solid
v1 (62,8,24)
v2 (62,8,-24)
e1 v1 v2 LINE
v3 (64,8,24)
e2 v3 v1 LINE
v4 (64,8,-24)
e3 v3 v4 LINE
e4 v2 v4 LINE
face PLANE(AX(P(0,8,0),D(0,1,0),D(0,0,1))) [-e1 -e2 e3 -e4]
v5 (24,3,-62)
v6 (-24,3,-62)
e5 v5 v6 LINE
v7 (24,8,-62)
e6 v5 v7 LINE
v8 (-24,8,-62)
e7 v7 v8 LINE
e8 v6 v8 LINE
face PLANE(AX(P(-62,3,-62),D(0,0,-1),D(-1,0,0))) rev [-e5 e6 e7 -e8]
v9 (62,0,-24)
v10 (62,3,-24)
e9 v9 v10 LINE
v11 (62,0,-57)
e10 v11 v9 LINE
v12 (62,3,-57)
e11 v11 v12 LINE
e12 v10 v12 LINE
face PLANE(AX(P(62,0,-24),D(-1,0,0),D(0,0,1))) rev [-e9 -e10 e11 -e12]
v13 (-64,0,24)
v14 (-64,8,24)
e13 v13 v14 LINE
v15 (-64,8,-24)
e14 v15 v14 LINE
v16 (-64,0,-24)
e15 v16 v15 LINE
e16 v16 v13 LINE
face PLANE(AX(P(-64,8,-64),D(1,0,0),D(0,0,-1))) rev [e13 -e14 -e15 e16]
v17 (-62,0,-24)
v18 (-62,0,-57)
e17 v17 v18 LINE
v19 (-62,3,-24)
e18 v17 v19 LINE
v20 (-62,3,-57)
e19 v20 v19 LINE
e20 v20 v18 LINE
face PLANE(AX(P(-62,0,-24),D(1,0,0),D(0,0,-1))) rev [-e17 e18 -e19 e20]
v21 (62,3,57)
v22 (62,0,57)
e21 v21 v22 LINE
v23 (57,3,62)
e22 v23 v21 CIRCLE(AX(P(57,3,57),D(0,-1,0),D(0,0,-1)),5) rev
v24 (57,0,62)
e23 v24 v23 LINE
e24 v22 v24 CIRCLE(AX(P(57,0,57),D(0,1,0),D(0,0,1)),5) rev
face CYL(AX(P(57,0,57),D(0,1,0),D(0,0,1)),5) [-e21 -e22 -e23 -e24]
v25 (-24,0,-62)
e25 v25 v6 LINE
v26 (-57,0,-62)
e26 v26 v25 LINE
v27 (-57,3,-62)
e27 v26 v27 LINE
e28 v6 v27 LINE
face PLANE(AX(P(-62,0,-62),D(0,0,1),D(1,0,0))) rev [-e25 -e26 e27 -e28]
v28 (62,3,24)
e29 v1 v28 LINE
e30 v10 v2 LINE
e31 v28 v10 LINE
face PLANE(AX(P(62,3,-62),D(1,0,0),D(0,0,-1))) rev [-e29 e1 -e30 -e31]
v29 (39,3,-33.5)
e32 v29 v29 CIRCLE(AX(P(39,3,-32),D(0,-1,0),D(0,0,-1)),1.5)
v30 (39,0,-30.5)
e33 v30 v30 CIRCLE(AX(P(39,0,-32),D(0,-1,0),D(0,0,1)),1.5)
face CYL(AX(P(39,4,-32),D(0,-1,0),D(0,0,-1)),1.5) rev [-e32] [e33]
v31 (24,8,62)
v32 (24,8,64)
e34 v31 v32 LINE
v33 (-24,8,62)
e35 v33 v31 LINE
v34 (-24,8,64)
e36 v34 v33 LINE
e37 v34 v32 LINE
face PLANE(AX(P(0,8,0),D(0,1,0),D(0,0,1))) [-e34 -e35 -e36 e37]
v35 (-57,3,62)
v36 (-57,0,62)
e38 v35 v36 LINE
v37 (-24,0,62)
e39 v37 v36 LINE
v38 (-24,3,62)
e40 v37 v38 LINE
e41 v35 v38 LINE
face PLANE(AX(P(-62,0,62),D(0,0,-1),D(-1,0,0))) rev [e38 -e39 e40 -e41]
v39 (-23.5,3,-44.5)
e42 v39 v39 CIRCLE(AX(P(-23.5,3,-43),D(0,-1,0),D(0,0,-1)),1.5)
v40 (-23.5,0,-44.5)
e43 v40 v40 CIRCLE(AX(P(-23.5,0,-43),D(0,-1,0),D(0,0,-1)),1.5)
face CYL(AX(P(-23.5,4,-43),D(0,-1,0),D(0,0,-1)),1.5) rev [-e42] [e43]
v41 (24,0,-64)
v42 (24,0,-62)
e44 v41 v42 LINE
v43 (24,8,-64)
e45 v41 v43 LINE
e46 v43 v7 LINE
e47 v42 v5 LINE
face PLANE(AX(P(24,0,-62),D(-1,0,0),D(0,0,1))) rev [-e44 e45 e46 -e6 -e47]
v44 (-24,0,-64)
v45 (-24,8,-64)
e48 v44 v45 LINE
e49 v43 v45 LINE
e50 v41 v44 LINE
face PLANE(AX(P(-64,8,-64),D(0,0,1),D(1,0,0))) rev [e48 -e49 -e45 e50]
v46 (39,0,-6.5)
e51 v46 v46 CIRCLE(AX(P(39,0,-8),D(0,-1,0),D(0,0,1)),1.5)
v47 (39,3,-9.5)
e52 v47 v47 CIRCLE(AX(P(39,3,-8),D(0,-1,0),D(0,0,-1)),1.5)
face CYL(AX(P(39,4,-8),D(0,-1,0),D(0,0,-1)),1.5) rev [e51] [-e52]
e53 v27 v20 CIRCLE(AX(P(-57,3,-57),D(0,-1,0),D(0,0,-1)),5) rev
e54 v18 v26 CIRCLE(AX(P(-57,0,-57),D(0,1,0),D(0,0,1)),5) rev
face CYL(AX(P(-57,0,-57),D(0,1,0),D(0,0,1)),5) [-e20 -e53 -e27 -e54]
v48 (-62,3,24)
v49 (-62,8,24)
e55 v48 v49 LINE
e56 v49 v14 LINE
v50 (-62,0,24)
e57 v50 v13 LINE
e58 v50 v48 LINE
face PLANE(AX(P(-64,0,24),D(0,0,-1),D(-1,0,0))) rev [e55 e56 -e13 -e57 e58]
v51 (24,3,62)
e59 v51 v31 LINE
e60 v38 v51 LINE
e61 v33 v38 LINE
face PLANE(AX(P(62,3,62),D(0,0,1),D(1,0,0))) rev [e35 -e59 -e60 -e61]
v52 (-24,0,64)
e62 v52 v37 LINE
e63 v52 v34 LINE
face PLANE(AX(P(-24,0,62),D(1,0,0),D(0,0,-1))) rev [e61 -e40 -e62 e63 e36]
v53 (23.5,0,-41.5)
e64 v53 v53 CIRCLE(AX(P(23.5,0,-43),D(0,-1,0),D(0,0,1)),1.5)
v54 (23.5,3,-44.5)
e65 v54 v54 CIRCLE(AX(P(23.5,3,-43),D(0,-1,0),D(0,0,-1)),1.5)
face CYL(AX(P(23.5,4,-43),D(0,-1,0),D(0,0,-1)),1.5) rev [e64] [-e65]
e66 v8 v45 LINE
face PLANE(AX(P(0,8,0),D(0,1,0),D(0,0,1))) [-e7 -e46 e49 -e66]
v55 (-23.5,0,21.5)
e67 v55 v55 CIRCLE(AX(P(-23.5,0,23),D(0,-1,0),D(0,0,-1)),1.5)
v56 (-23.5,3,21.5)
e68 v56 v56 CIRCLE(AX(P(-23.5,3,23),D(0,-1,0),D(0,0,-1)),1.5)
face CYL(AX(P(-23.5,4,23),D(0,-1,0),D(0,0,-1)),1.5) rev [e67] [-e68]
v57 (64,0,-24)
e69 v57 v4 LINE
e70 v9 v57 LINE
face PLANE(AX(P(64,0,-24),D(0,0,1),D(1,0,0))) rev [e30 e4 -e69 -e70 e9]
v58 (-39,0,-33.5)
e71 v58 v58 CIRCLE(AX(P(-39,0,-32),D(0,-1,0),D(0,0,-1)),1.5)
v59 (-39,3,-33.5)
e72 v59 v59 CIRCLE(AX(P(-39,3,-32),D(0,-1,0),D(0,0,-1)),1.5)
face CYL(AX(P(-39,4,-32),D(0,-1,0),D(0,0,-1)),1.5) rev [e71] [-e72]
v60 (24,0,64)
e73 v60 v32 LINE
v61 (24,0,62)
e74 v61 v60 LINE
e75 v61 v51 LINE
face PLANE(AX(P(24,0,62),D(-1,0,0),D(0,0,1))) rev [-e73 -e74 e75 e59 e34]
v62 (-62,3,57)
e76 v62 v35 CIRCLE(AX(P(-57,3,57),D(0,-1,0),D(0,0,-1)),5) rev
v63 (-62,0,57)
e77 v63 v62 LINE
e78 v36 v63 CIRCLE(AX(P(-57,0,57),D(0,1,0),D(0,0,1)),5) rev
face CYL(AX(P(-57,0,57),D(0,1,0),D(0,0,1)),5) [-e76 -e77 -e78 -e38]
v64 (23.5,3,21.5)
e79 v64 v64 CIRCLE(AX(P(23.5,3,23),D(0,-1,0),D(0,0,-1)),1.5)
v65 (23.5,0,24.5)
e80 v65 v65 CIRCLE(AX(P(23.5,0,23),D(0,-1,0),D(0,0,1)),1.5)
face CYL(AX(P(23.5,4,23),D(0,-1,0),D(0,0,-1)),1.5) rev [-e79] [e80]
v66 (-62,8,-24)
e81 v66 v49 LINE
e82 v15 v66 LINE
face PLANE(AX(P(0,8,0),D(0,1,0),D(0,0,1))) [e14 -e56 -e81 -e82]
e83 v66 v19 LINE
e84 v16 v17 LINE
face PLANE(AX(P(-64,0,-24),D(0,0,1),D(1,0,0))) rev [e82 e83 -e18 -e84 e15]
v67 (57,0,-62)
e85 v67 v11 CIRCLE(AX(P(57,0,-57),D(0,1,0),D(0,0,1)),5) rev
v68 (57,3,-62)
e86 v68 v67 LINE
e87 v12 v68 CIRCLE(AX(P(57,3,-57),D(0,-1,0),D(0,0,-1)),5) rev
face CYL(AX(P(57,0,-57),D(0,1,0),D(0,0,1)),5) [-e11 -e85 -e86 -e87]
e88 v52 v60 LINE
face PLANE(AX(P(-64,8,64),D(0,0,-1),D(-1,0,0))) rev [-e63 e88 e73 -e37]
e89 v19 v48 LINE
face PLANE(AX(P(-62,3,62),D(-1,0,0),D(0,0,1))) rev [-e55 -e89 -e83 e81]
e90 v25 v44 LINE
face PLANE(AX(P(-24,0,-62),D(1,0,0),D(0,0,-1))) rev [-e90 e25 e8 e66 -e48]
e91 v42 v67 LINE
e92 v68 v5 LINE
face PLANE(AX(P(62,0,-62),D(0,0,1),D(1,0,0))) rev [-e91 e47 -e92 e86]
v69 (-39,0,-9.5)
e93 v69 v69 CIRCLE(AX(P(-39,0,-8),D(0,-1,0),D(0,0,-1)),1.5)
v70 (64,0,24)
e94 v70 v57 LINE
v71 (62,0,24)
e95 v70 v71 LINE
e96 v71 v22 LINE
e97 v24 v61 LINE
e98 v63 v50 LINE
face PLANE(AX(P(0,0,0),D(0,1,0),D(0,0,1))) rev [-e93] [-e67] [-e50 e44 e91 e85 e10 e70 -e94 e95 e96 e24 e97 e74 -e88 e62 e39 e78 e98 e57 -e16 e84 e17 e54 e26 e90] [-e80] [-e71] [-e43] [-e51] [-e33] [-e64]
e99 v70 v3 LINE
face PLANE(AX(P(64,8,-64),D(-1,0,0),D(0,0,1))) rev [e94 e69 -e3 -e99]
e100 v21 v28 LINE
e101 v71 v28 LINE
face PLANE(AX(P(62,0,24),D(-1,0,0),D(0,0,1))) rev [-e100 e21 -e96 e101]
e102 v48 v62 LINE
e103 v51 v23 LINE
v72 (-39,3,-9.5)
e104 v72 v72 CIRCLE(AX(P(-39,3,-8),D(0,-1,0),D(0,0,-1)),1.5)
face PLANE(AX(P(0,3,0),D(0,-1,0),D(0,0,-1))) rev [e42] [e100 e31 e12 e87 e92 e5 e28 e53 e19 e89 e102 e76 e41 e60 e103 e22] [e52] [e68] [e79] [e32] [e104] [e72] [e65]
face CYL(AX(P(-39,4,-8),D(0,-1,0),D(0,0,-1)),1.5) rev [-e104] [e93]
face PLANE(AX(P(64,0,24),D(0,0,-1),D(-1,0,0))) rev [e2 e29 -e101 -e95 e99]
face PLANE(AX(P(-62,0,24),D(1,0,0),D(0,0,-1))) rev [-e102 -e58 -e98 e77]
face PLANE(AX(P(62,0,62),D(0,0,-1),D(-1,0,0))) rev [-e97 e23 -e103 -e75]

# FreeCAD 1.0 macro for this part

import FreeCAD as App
import Part
import Sketcher
from FreeCAD import Vector


def edges_at(feature, points):
    """Names of the edges that pass closest to the given points."""
    edges = feature.Shape.Edges
    near = lambda p: min(range(len(edges)), key=lambda i: edges[i].distToShape(Part.Vertex(*p))[0])
    return sorted({f"Edge{near(p) + 1}" for p in points})


def add_polygon(sketch, points):
    """Adds a closed chain of lines whose ends are joined by coincident constraints."""
    first, n = sketch.GeometryCount, len(points)
    for a, b in zip(points, points[1:] + points[:1]):
        sketch.addGeometry(Part.LineSegment(App.Vector(*a, 0), App.Vector(*b, 0)), False)
    for i in range(n):
        sketch.addConstraint(Sketcher.Constraint("Coincident", first + i, 2, first + (i + 1) % n, 1))

doc = App.newDocument("Part")
body = doc.addObject("PartDesign::Body", "Body")

# Sketch on XZ plane
sketch1 = body.newObject("Sketcher::SketchObject", "Sketch")
sketch1.AttachmentSupport = (doc.getObject("XZ_Plane"), [""])
sketch1.MapMode = "FlatFace"
add_polygon(sketch1, [(-64, -64), (-64, 64), (64, 64), (64, -64)])  # lines 0-3
sketch1.addConstraint(Sketcher.Constraint("Vertical", 0))
sketch1.addConstraint(Sketcher.Constraint("Horizontal", 1))
sketch1.addConstraint(Sketcher.Constraint("Vertical", 2))
sketch1.addConstraint(Sketcher.Constraint("Horizontal", 3))
sketch1.addConstraint(Sketcher.Constraint("Symmetric", 0, 2, 2, 2, -1, 1))
sketch1.addConstraint(Sketcher.Constraint("Equal", 3, 0))
sketch1.addConstraint(Sketcher.Constraint("DistanceX", 1, 1, 1, 2, 128.0))
pad1 = body.newObject("PartDesign::Pad", "Pad")
pad1.Profile = sketch1
pad1.Length = 8
pad1.Reversed = True

# Sketch on XZ plane
sketch2 = body.newObject("Sketcher::SketchObject", "Sketch001")
sketch2.AttachmentSupport = (doc.getObject("XZ_Plane"), [""])
sketch2.MapMode = "FlatFace"
sketch2.AttachmentOffset = App.Placement(Vector(0, 0, -8), App.Rotation())
add_polygon(sketch2, [(-64, -64), (-64, -24), (-62, -24), (-62, -62), (-24, -62), (-24, -64)])  # lines 0-5
add_polygon(sketch2, [(-62, 24), (-64, 24), (-64, 64), (-24, 64), (-24, 62), (-62, 62)])  # lines 6-11
add_polygon(sketch2, [(24, 62), (24, 64), (64, 64), (64, 24), (62, 24), (62, 62)])  # lines 12-17
add_polygon(sketch2, [(62, -24), (64, -24), (64, -64), (24, -64), (24, -62), (62, -62)])  # lines 18-23
sketch2.addConstraint(Sketcher.Constraint("Vertical", 0))
sketch2.addConstraint(Sketcher.Constraint("Horizontal", 1))
sketch2.addConstraint(Sketcher.Constraint("Vertical", 2))
sketch2.addConstraint(Sketcher.Constraint("Horizontal", 3))
sketch2.addConstraint(Sketcher.Constraint("Vertical", 4))
sketch2.addConstraint(Sketcher.Constraint("Horizontal", 5))
sketch2.addConstraint(Sketcher.Constraint("Horizontal", 6))
sketch2.addConstraint(Sketcher.Constraint("Vertical", 7))
sketch2.addConstraint(Sketcher.Constraint("Horizontal", 8))
sketch2.addConstraint(Sketcher.Constraint("Vertical", 9))
sketch2.addConstraint(Sketcher.Constraint("Horizontal", 10))
sketch2.addConstraint(Sketcher.Constraint("Vertical", 11))
sketch2.addConstraint(Sketcher.Constraint("Vertical", 12))
sketch2.addConstraint(Sketcher.Constraint("Horizontal", 13))
sketch2.addConstraint(Sketcher.Constraint("Vertical", 14))
sketch2.addConstraint(Sketcher.Constraint("Horizontal", 15))
sketch2.addConstraint(Sketcher.Constraint("Vertical", 16))
sketch2.addConstraint(Sketcher.Constraint("Horizontal", 17))
sketch2.addConstraint(Sketcher.Constraint("Horizontal", 18))
sketch2.addConstraint(Sketcher.Constraint("Vertical", 19))
sketch2.addConstraint(Sketcher.Constraint("Horizontal", 20))
sketch2.addConstraint(Sketcher.Constraint("Vertical", 21))
sketch2.addConstraint(Sketcher.Constraint("Horizontal", 22))
sketch2.addConstraint(Sketcher.Constraint("Vertical", 23))
sketch2.addConstraint(Sketcher.Constraint("Symmetric", 4, 2, 12, 2, -1, 1))
sketch2.addConstraint(Sketcher.Constraint("Symmetric", 0, 2, 14, 2, -1, 1))
sketch2.addConstraint(Sketcher.Constraint("Symmetric", 2, 2, 16, 2, -1, 1))
sketch2.addConstraint(Sketcher.Constraint("Symmetric", 6, 2, 18, 2, -1, 1))
sketch2.addConstraint(Sketcher.Constraint("Symmetric", 8, 2, 20, 2, -1, 1))
sketch2.addConstraint(Sketcher.Constraint("Symmetric", 10, 2, 22, 2, -1, 1))
sketch2.addConstraint(Sketcher.Constraint("Symmetric", 8, 2, 12, 2, -2))
sketch2.addConstraint(Sketcher.Constraint("Symmetric", 6, 2, 14, 2, -2))
sketch2.addConstraint(Sketcher.Constraint("Symmetric", 10, 2, 16, 2, -2))
sketch2.addConstraint(Sketcher.Constraint("Equal", 20, 0))
sketch2.addConstraint(Sketcher.Constraint("Equal", 22, 2))
sketch2.addConstraint(Sketcher.Constraint("DistanceX", 1, 1, 1, 2, 2.0))
sketch2.addConstraint(Sketcher.Constraint("DistanceX", 3, 1, 3, 2, 38.0))
sketch2.addConstraint(Sketcher.Constraint("DistanceX", 0, 2, -1, 1, 64.0))
sketch2.addConstraint(Sketcher.Constraint("DistanceY", 0, 2, -1, 1, 24.0))
pocket1 = body.newObject("PartDesign::Pocket", "Pocket")
pocket1.Profile = sketch2
pocket1.Length = 8
pocket1.Reversed = True

# Sketch on XZ plane
sketch3 = body.newObject("Sketcher::SketchObject", "Sketch002")
sketch3.AttachmentSupport = (doc.getObject("XZ_Plane"), [""])
sketch3.MapMode = "FlatFace"
sketch3.AttachmentOffset = App.Placement(Vector(0, 0, -8), App.Rotation())
add_polygon(sketch3, [(-62, -62), (-62, 62), (62, 62), (62, -62)])  # lines 0-3
sketch3.addConstraint(Sketcher.Constraint("Vertical", 0))
sketch3.addConstraint(Sketcher.Constraint("Horizontal", 1))
sketch3.addConstraint(Sketcher.Constraint("Vertical", 2))
sketch3.addConstraint(Sketcher.Constraint("Horizontal", 3))
sketch3.addConstraint(Sketcher.Constraint("Symmetric", 0, 2, 2, 2, -1, 1))
sketch3.addConstraint(Sketcher.Constraint("Equal", 3, 0))
sketch3.addConstraint(Sketcher.Constraint("DistanceX", 1, 1, 1, 2, 124.0))
pocket2 = body.newObject("PartDesign::Pocket", "Pocket001")
pocket2.Profile = sketch3
pocket2.Length = 5
pocket2.Reversed = True
doc.recompute()

fillet = body.newObject("PartDesign::Fillet", "Fillet")
fillet.Base = (pocket2, edges_at(pocket2, [(-62, 1.5, 62)]))
fillet.Radius = 5
doc.recompute()

fillet2 = body.newObject("PartDesign::Fillet", "Fillet001")
fillet2.Base = (fillet, edges_at(fillet, [(62, 1.5, 62)]))
fillet2.Radius = 5
doc.recompute()

fillet3 = body.newObject("PartDesign::Fillet", "Fillet002")
fillet3.Base = (fillet2, edges_at(fillet2, [(62, 1.5, -62)]))
fillet3.Radius = 5
doc.recompute()

fillet4 = body.newObject("PartDesign::Fillet", "Fillet003")
fillet4.Base = (fillet3, edges_at(fillet3, [(-62, 1.5, -62)]))
fillet4.Radius = 5

# Sketch on XZ plane
sketch4 = body.newObject("Sketcher::SketchObject", "Sketch003")
sketch4.AttachmentSupport = (doc.getObject("XZ_Plane"), [""])
sketch4.MapMode = "FlatFace"
sketch4.addGeometry(Part.Circle(Vector(-23.5, -43, 0), Vector(0, 0, 1), 1.5), False)
sketch4.addGeometry(Part.Circle(Vector(23.5, -43, 0), Vector(0, 0, 1), 1.5), False)
sketch4.addGeometry(Part.Circle(Vector(-23.5, 23, 0), Vector(0, 0, 1), 1.5), False)
sketch4.addGeometry(Part.Circle(Vector(23.5, 23, 0), Vector(0, 0, 1), 1.5), False)
sketch4.addGeometry(Part.Circle(Vector(-39, -32, 0), Vector(0, 0, 1), 1.5), False)
sketch4.addGeometry(Part.Circle(Vector(39, -32, 0), Vector(0, 0, 1), 1.5), False)
sketch4.addGeometry(Part.Circle(Vector(-39, -8, 0), Vector(0, 0, 1), 1.5), False)
sketch4.addGeometry(Part.Circle(Vector(39, -8, 0), Vector(0, 0, 1), 1.5), False)
sketch4.addConstraint(Sketcher.Constraint("Equal", 0, 1))
sketch4.addConstraint(Sketcher.Constraint("Equal", 1, 2))
sketch4.addConstraint(Sketcher.Constraint("Equal", 2, 3))
sketch4.addConstraint(Sketcher.Constraint("Equal", 3, 4))
sketch4.addConstraint(Sketcher.Constraint("Equal", 4, 5))
sketch4.addConstraint(Sketcher.Constraint("Equal", 5, 6))
sketch4.addConstraint(Sketcher.Constraint("Equal", 6, 7))
sketch4.addConstraint(Sketcher.Constraint("Symmetric", 0, 3, 1, 3, -2))
sketch4.addConstraint(Sketcher.Constraint("Symmetric", 2, 3, 3, 3, -2))
sketch4.addConstraint(Sketcher.Constraint("Symmetric", 4, 3, 5, 3, -2))
sketch4.addConstraint(Sketcher.Constraint("Symmetric", 6, 3, 7, 3, -2))
sketch4.addConstraint(Sketcher.Constraint("Vertical", 0, 3, 2, 3))
sketch4.addConstraint(Sketcher.Constraint("Vertical", 4, 3, 6, 3))
sketch4.addConstraint(Sketcher.Constraint("Diameter", 0, 3.0))
sketch4.addConstraint(Sketcher.Constraint("DistanceY", 0, 3, -1, 1, 43.0))
sketch4.addConstraint(Sketcher.Constraint("DistanceY", -1, 1, 2, 3, 23.0))
sketch4.addConstraint(Sketcher.Constraint("DistanceX", 4, 3, -1, 1, 39.0))
sketch4.addConstraint(Sketcher.Constraint("DistanceY", 4, 3, -1, 1, 32.0))
sketch4.addConstraint(Sketcher.Constraint("DistanceY", 6, 3, -1, 1, 8.0))
sketch4.addConstraint(Sketcher.Constraint("DistanceX", 0, 3, 1, 3, 47.0))
pocket3 = body.newObject("PartDesign::Pocket", "Pocket002")
pocket3.Profile = sketch4
pocket3.Length = 4

doc.recompute()
